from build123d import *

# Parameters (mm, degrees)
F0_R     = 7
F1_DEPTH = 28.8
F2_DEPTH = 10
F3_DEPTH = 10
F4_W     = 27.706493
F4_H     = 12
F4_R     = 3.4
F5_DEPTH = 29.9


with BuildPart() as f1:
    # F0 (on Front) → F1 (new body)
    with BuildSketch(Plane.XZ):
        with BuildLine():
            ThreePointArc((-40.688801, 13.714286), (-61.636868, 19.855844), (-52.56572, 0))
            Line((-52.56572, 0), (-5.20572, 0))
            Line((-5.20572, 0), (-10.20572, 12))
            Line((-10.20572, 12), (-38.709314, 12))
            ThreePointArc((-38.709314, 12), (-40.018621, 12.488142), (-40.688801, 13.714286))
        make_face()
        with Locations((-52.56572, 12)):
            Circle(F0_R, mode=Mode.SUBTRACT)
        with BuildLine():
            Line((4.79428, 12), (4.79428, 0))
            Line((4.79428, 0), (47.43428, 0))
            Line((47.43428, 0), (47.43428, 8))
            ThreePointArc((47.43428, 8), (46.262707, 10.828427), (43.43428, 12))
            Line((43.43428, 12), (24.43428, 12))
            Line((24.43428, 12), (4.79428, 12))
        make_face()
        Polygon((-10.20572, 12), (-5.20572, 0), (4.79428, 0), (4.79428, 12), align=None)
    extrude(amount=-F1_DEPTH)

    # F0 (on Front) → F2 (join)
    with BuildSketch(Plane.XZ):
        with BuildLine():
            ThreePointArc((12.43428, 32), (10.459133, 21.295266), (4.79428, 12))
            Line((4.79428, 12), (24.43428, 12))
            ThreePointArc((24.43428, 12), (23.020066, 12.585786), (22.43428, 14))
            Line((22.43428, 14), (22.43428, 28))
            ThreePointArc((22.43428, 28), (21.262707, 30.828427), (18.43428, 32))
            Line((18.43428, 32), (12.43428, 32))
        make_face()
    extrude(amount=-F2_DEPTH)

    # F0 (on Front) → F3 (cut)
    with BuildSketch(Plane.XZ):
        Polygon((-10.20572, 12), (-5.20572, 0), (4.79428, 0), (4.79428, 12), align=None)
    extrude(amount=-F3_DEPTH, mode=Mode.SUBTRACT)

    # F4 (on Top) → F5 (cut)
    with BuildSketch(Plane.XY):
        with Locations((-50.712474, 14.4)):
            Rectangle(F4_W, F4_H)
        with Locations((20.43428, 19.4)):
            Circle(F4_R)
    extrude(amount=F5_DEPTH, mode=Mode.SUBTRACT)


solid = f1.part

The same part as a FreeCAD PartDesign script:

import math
import FreeCAD as App
import Part
import Sketcher

doc = App.newDocument("Part")
body = doc.addObject("PartDesign::Body", "Body")

sketch1 = body.newObject("Sketcher::SketchObject", "Sketch")
sketch1.AttachmentSupport = (doc.getObject("XZ_Plane"), [""])
sketch1.MapMode = "FlatFace"
sketch1.addGeometry(Part.ArcOfCircle(Part.Circle(App.Vector(-52.6, 12, 0), App.Vector(0, 0, 1), 12), math.radians(8), math.radians(270)), False)
sketch1.addGeometry(Part.LineSegment(App.Vector(-52.6, 0, 0), App.Vector(47.4, 0, 0)), False)
sketch1.addGeometry(Part.LineSegment(App.Vector(47.4, 0, 0), App.Vector(47.4, 8, 0)), False)
sketch1.addGeometry(Part.ArcOfCircle(Part.Circle(App.Vector(43.4, 8, 0), App.Vector(0, 0, 1), 4), math.radians(0), math.radians(90)), False)
sketch1.addGeometry(Part.LineSegment(App.Vector(43.4, 12, 0), App.Vector(-38.7, 12, 0)), False)
sketch1.addGeometry(Part.ArcOfCircle(Part.Circle(App.Vector(-38.7, 14, 0), App.Vector(0, 0, 1), 2), math.radians(-172), math.radians(-90)), False)
sketch1.addGeometry(Part.Circle(App.Vector(-52.6, 12, 0), App.Vector(0, 0, 1), 7), False)
sketch1.addConstraint(Sketcher.Constraint("Tangent", 0, 2, 1, 1))
sketch1.addConstraint(Sketcher.Constraint("Coincident", 1, 2, 2, 1))
sketch1.addConstraint(Sketcher.Constraint("Tangent", 2, 2, 3, 1))
sketch1.addConstraint(Sketcher.Constraint("Tangent", 3, 2, 4, 1))
sketch1.addConstraint(Sketcher.Constraint("Tangent", 4, 2, 5, 2))
sketch1.addConstraint(Sketcher.Constraint("Tangent", 5, 1, 0, 1))
sketch1.addConstraint(Sketcher.Constraint("Horizontal", 1))
sketch1.addConstraint(Sketcher.Constraint("Vertical", 2))
sketch1.addConstraint(Sketcher.Constraint("Horizontal", 4))
sketch1.addConstraint(Sketcher.Constraint("Coincident", 6, 3, 0, 3))
sketch1.addConstraint(Sketcher.Constraint("PointOnObject", 0, 2, -1))
sketch1.addConstraint(Sketcher.Constraint("Horizontal", 6, 3, 3, 2))
sketch1.addConstraint(Sketcher.Constraint("Diameter", 6, 14.0))
sketch1.addConstraint(Sketcher.Constraint("Radius", 0, 12.0))
sketch1.addConstraint(Sketcher.Constraint("Radius", 3, 4.0))
sketch1.addConstraint(Sketcher.Constraint("Radius", 5, 2.000001))
sketch1.addConstraint(Sketcher.Constraint("DistanceX", 1, 1, 1, 2, 100.0))
sketch1.addConstraint(Sketcher.Constraint("DistanceX", 5, 1, -1, 1, 40.688801))
pad1 = body.newObject("PartDesign::Pad", "Pad")
pad1.Profile = sketch1
pad1.Length = 28.8
pad1.Reversed = True

sketch2 = body.newObject("Sketcher::SketchObject", "Sketch001")
sketch2.AttachmentSupport = (doc.getObject("XZ_Plane"), [""])
sketch2.MapMode = "FlatFace"
sketch2.addGeometry(Part.ArcOfCircle(Part.Circle(App.Vector(-17.6, 32, 0), App.Vector(0, 0, 1), 30), math.radians(-42), math.radians(0)), False)
sketch2.addGeometry(Part.LineSegment(App.Vector(4.8, 12, 0), App.Vector(24.4, 12, 0)), False)
sketch2.addGeometry(Part.ArcOfCircle(Part.Circle(App.Vector(24.4, 14, 0), App.Vector(0, 0, 1), 2), math.radians(180), math.radians(270)), False)
sketch2.addGeometry(Part.LineSegment(App.Vector(22.4, 14, 0), App.Vector(22.4, 28, 0)), False)
sketch2.addGeometry(Part.ArcOfCircle(Part.Circle(App.Vector(18.4, 28, 0), App.Vector(0, 0, 1), 4), math.radians(0), math.radians(90)), False)
sketch2.addGeometry(Part.LineSegment(App.Vector(18.4, 32, 0), App.Vector(12.4, 32, 0)), False)
sketch2.addConstraint(Sketcher.Constraint("Coincident", 0, 1, 1, 1))
sketch2.addConstraint(Sketcher.Constraint("Tangent", 1, 2, 2, 2))
sketch2.addConstraint(Sketcher.Constraint("Tangent", 2, 1, 3, 1))
sketch2.addConstraint(Sketcher.Constraint("Tangent", 3, 2, 4, 1))
sketch2.addConstraint(Sketcher.Constraint("Tangent", 4, 2, 5, 1))
sketch2.addConstraint(Sketcher.Constraint("Coincident", 5, 2, 0, 2))
sketch2.addConstraint(Sketcher.Constraint("Horizontal", 1))
sketch2.addConstraint(Sketcher.Constraint("Vertical", 3))
sketch2.addConstraint(Sketcher.Constraint("Horizontal", 5))
sketch2.addConstraint(Sketcher.Constraint("Radius", 2, 1.999999))
sketch2.addConstraint(Sketcher.Constraint("Radius", 4, 4.0))
sketch2.addConstraint(Sketcher.Constraint("DistanceX", 5, 2, 5, 1, 6.0))
sketch2.addConstraint(Sketcher.Constraint("DistanceY", 3, 1, 3, 2, 14.0))
sketch2.addConstraint(Sketcher.Constraint("DistanceY", -1, 1, 2, 3, 13.999999))
sketch2.addConstraint(Sketcher.Constraint("DistanceX", 0, 3, 2, 3, 42.000002))
sketch2.addConstraint(Sketcher.Constraint("DistanceX", 1, 1, 1, 2, 19.64))
sketch2.addConstraint(Sketcher.Constraint("DistanceX", -1, 1, 2, 3, 24.434279))
pad2 = body.newObject("PartDesign::Pad", "Pad001")
pad2.Profile = sketch2
pad2.Length = 10
pad2.Reversed = True

sketch3 = body.newObject("Sketcher::SketchObject", "Sketch002")
sketch3.AttachmentSupport = (doc.getObject("XZ_Plane"), [""])
sketch3.MapMode = "FlatFace"
sketch3.addGeometry(Part.LineSegment(App.Vector(-10, 12, 0), App.Vector(-5, 0, 0)), False)
sketch3.addGeometry(Part.LineSegment(App.Vector(-5, 0, 0), App.Vector(5, 0, 0)), False)
sketch3.addGeometry(Part.LineSegment(App.Vector(5, 0, 0), App.Vector(5, 12, 0)), False)
sketch3.addGeometry(Part.LineSegment(App.Vector(5, 12, 0), App.Vector(-10, 12, 0)), False)
sketch3.addConstraint(Sketcher.Constraint("Coincident", 0, 2, 1, 1))
sketch3.addConstraint(Sketcher.Constraint("Coincident", 1, 2, 2, 1))
sketch3.addConstraint(Sketcher.Constraint("Coincident", 2, 2, 3, 1))
sketch3.addConstraint(Sketcher.Constraint("Coincident", 3, 2, 0, 1))
sketch3.addConstraint(Sketcher.Constraint("Horizontal", 1))
sketch3.addConstraint(Sketcher.Constraint("Vertical", 2))
sketch3.addConstraint(Sketcher.Constraint("Horizontal", 3))
sketch3.addConstraint(Sketcher.Constraint("PointOnObject", 0, 2, -1))
sketch3.addConstraint(Sketcher.Constraint("DistanceX", 1, 1, 1, 2, 10.0))
sketch3.addConstraint(Sketcher.Constraint("DistanceX", 3, 2, 3, 1, 15.0))
sketch3.addConstraint(Sketcher.Constraint("DistanceY", 2, 1, 2, 2, 12.0))
sketch3.addConstraint(Sketcher.Constraint("DistanceX", 0, 2, -1, 1, 5.20572))
pocket1 = body.newObject("PartDesign::Pocket", "Pocket")
pocket1.Profile = sketch3
pocket1.Length = 10

sketch4 = body.newObject("Sketcher::SketchObject", "Sketch003")
sketch4.AttachmentSupport = (doc.getObject("XY_Plane"), [""])
sketch4.MapMode = "FlatFace"
sketch4.addGeometry(Part.LineSegment(App.Vector(-64.6, 20.4, 0), App.Vector(-64.6, 8.4, 0)), False)
sketch4.addGeometry(Part.LineSegment(App.Vector(-64.6, 8.4, 0), App.Vector(-36.9, 8.4, 0)), False)
sketch4.addGeometry(Part.LineSegment(App.Vector(-36.9, 8.4, 0), App.Vector(-36.9, 20.4, 0)), False)
sketch4.addGeometry(Part.LineSegment(App.Vector(-36.9, 20.4, 0), App.Vector(-64.6, 20.4, 0)), False)
sketch4.addGeometry(Part.Circle(App.Vector(20.4, 19.4, 0), App.Vector(0, 0, 1), 3.4), False)
sketch4.addConstraint(Sketcher.Constraint("Coincident", 0, 2, 1, 1))
sketch4.addConstraint(Sketcher.Constraint("Coincident", 1, 2, 2, 1))
sketch4.addConstraint(Sketcher.Constraint("Coincident", 2, 2, 3, 1))
sketch4.addConstraint(Sketcher.Constraint("Coincident", 3, 2, 0, 1))
sketch4.addConstraint(Sketcher.Constraint("Vertical", 0))
sketch4.addConstraint(Sketcher.Constraint("Horizontal", 1))
sketch4.addConstraint(Sketcher.Constraint("Vertical", 2))
sketch4.addConstraint(Sketcher.Constraint("Horizontal", 3))
sketch4.addConstraint(Sketcher.Constraint("Diameter", 4, 6.8))
sketch4.addConstraint(Sketcher.Constraint("DistanceY", 0, 2, 0, 1, 12.0))
sketch4.addConstraint(Sketcher.Constraint("DistanceX", 0, 2, 4, 3, 85.0))
sketch4.addConstraint(Sketcher.Constraint("DistanceY", 0, 2, 4, 3, 11.0))
sketch4.addConstraint(Sketcher.Constraint("DistanceY", -1, 1, 4, 3, 19.4))
sketch4.addConstraint(Sketcher.Constraint("DistanceX", 1, 1, 1, 2, 27.706493))
sketch4.addConstraint(Sketcher.Constraint("DistanceX", -1, 1, 4, 3, 20.43428))
pocket2 = body.newObject("PartDesign::Pocket", "Pocket001")
pocket2.Profile = sketch4
pocket2.Length = 29.9
pocket2.Reversed = True

doc.recompute()
